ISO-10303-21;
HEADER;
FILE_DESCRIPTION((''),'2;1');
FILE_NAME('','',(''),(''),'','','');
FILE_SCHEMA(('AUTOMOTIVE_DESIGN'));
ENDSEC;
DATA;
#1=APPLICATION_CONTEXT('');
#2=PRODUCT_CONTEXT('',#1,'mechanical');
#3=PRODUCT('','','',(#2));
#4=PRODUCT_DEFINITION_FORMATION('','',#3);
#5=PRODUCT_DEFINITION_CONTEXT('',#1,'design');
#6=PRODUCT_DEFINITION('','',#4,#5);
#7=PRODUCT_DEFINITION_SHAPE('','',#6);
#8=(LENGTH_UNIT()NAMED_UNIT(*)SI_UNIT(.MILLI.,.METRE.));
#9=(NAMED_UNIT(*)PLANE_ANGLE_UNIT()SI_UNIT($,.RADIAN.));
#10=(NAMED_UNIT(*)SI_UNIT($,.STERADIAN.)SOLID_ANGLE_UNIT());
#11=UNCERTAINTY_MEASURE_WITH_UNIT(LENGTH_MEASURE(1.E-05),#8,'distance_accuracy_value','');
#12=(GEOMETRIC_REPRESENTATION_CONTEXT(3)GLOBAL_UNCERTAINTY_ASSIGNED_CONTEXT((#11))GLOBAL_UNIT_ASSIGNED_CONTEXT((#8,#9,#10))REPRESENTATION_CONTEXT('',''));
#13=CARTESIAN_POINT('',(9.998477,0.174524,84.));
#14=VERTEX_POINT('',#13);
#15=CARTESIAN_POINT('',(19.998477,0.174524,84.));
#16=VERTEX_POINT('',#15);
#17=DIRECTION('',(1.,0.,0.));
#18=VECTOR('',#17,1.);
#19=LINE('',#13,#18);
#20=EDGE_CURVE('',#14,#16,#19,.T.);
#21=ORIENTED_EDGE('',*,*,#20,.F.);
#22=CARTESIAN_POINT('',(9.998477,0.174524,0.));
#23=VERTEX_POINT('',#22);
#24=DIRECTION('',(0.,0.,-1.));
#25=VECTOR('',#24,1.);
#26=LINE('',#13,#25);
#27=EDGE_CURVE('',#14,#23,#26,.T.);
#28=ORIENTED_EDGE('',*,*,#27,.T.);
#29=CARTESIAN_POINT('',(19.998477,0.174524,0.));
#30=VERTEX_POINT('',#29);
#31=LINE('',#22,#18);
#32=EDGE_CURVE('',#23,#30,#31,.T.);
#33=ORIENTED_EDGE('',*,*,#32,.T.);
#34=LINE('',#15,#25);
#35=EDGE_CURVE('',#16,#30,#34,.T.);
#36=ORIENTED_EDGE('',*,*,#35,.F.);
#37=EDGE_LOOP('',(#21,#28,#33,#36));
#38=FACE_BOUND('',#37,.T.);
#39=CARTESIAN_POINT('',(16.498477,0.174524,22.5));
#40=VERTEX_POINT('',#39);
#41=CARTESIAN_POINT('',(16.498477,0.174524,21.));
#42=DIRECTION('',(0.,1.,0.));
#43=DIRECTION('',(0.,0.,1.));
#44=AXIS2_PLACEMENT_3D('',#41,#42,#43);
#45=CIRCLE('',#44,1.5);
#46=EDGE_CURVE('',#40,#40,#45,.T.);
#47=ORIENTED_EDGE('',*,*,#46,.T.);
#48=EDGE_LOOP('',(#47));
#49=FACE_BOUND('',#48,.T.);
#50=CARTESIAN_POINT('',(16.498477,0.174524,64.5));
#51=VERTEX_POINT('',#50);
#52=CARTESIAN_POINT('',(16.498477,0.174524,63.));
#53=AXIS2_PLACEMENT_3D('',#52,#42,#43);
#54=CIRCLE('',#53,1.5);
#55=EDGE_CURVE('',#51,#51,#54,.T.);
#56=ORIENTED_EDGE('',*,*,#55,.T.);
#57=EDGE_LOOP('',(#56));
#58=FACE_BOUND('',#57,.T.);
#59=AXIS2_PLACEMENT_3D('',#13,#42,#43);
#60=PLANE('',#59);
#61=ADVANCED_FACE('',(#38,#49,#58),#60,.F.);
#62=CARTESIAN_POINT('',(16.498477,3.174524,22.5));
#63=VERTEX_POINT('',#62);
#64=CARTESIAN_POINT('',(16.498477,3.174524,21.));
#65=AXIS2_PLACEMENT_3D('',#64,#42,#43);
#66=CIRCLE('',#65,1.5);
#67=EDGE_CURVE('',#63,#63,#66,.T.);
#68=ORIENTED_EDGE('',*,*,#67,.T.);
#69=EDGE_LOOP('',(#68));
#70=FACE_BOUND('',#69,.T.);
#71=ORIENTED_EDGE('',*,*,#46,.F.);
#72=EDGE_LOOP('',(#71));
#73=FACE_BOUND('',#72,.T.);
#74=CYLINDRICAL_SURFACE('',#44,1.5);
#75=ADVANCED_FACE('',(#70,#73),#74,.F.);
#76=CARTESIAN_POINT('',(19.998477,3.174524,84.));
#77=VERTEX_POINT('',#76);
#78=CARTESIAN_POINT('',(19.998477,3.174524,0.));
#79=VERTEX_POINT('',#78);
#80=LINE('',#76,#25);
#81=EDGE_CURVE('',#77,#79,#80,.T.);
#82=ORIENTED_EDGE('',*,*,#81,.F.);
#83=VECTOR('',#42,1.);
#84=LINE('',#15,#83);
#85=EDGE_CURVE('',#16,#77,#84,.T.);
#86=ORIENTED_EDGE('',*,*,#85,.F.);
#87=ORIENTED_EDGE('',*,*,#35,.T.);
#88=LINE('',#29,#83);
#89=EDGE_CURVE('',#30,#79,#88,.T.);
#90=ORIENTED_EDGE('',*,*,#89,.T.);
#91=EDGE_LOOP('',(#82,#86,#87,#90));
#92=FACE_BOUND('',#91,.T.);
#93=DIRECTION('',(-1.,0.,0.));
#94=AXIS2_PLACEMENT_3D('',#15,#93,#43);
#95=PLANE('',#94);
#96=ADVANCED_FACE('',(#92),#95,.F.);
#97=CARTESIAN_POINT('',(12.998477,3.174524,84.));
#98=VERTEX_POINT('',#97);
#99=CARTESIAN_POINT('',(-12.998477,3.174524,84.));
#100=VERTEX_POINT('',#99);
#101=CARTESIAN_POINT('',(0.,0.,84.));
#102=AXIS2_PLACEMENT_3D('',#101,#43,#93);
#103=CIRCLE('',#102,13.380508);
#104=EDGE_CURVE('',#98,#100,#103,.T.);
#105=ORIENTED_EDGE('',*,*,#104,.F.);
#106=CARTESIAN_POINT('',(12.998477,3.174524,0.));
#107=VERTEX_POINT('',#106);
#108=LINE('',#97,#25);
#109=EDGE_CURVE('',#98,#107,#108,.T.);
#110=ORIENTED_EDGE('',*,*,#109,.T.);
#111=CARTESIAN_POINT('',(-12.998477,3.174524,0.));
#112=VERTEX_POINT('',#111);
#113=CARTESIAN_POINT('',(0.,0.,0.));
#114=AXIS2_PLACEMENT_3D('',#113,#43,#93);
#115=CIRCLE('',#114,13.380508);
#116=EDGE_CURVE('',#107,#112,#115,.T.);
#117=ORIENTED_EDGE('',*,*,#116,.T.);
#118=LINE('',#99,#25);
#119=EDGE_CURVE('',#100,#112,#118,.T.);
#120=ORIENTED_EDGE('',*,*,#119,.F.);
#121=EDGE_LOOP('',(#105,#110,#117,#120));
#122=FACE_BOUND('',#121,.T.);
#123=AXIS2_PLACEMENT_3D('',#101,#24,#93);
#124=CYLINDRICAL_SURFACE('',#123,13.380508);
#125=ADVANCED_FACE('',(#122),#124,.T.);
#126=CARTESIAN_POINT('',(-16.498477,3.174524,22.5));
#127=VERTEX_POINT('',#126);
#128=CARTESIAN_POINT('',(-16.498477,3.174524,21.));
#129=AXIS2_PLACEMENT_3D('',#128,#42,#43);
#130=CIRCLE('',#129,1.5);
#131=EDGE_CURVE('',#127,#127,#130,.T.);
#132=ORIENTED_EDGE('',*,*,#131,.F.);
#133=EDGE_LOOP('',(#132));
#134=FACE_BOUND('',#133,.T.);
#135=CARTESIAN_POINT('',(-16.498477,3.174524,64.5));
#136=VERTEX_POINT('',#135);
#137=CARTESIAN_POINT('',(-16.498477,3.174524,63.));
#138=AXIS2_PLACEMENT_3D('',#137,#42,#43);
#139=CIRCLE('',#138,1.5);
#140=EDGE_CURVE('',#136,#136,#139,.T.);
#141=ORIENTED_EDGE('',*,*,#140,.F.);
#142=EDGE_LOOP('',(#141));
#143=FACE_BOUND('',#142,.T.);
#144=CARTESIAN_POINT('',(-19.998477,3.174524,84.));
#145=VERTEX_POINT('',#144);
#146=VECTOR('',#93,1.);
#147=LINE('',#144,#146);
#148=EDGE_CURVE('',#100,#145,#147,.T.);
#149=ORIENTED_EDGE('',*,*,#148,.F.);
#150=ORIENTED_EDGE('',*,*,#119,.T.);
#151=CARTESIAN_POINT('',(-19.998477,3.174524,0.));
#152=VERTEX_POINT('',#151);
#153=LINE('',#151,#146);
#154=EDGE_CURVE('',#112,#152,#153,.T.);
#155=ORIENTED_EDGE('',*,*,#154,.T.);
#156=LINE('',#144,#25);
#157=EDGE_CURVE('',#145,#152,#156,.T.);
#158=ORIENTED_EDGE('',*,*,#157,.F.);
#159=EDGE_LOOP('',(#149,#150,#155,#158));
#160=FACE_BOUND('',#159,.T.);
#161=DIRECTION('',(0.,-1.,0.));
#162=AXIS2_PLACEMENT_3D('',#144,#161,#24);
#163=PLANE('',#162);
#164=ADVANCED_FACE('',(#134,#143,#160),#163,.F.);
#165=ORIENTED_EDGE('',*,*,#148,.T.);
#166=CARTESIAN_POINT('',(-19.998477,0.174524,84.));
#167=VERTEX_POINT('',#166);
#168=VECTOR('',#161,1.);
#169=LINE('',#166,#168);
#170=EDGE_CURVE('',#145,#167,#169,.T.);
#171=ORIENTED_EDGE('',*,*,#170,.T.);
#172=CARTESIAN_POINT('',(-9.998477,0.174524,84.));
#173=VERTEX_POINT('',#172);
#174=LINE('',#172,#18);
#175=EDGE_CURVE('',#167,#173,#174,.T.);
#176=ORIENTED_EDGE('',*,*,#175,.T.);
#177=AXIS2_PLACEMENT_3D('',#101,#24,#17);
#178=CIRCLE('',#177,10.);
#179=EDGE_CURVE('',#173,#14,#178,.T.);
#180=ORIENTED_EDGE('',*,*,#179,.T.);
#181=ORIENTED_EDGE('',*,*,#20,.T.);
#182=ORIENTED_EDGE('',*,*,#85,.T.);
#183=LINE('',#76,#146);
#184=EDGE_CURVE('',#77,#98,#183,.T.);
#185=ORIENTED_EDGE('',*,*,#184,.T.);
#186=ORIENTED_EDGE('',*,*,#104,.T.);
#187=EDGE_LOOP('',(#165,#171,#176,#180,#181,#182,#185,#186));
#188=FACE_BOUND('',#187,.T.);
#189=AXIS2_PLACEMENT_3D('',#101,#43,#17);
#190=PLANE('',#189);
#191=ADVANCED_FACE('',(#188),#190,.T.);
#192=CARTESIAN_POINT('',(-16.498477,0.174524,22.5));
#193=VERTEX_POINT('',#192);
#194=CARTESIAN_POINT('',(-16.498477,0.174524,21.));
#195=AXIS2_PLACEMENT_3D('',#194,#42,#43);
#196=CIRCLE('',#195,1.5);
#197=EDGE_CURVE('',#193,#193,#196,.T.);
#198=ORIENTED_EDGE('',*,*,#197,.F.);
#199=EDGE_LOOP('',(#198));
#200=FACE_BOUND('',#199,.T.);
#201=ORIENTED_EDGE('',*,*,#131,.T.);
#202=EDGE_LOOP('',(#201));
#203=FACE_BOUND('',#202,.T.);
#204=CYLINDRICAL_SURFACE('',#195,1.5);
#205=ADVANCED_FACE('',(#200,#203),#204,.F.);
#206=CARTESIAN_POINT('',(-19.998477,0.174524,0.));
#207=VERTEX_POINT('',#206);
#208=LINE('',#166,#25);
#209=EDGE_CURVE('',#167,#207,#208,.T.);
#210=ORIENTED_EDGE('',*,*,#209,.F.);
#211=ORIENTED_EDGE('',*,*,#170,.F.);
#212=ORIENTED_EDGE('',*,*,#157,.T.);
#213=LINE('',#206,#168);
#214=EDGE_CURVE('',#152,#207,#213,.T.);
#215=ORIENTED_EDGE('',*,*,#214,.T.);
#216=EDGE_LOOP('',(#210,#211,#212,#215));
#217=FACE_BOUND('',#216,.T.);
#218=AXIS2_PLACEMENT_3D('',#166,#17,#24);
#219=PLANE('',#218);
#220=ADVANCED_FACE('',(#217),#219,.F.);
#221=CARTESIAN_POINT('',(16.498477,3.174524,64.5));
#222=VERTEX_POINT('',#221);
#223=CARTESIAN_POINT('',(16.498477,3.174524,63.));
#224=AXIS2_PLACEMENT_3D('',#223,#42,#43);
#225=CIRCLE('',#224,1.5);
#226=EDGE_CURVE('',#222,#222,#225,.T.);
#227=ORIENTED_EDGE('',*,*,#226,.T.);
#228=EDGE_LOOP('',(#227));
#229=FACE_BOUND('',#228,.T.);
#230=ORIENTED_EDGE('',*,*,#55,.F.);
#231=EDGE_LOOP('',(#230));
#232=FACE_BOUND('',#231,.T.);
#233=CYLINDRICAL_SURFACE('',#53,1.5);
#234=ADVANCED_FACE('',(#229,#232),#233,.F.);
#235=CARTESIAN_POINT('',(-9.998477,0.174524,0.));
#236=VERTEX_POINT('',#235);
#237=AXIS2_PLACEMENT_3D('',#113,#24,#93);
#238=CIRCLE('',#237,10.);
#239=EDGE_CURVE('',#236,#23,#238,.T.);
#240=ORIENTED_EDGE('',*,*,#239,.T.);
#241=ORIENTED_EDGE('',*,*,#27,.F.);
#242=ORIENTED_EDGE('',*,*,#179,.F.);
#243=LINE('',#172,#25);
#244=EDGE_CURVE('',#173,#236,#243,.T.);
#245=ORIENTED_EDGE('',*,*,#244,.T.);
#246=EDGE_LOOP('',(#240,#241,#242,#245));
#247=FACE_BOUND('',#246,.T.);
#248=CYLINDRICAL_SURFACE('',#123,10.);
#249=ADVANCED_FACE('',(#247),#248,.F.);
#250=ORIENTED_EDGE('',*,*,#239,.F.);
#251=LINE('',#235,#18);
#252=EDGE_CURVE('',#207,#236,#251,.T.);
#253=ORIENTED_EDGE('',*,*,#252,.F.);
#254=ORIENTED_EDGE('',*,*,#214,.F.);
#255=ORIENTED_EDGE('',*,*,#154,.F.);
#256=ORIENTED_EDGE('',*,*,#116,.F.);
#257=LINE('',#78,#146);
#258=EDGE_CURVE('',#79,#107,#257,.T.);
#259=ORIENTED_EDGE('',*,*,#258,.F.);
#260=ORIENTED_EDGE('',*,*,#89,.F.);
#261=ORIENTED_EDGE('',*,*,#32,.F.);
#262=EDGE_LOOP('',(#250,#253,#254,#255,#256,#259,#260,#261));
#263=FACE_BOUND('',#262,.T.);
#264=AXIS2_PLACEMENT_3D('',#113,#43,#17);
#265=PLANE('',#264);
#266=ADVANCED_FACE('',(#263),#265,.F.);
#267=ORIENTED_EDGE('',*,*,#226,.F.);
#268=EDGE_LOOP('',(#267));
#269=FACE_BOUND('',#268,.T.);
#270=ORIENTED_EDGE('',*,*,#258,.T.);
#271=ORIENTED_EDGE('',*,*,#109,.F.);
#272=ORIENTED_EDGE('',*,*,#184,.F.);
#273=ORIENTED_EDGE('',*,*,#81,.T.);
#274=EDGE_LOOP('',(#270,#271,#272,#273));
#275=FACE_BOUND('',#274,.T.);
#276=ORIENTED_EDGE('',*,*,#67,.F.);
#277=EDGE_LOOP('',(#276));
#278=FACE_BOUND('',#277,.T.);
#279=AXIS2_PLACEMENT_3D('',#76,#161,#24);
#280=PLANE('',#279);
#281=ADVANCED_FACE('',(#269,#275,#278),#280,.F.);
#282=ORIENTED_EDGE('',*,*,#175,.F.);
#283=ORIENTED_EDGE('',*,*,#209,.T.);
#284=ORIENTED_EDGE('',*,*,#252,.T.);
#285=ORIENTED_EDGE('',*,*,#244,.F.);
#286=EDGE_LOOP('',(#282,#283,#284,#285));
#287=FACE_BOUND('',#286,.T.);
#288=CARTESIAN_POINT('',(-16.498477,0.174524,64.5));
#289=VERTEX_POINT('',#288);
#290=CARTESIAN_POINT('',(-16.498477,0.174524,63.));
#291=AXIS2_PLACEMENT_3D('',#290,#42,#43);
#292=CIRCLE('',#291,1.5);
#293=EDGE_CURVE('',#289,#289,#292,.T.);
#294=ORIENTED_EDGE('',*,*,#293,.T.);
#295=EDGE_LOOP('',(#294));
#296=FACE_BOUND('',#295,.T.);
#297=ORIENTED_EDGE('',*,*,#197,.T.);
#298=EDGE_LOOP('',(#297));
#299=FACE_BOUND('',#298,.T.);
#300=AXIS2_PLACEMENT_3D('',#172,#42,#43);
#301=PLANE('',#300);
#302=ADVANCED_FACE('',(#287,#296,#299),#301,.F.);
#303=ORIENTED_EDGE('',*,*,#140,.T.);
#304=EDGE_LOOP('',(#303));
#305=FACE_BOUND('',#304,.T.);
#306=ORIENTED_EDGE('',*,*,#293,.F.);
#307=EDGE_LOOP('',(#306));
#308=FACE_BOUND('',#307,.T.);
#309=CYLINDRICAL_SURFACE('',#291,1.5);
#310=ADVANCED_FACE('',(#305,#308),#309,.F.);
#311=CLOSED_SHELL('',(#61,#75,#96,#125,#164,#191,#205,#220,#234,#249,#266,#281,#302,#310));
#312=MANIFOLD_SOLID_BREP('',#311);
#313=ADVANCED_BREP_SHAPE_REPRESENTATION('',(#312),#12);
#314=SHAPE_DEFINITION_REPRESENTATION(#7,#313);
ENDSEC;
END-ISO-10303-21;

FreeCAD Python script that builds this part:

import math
import FreeCAD as App
import Part
import Sketcher
from FreeCAD import Vector

doc = App.newDocument("Part")
body = doc.addObject("PartDesign::Body", "Body")

# Sketch on XY plane
sketch1 = body.newObject("Sketcher::SketchObject", "Sketch")
sketch1.AttachmentSupport = (doc.getObject("XY_Plane"), [""])
sketch1.MapMode = "FlatFace"
sketch1.addGeometry([
    Part.LineSegment(Vector(-19.998477, 0.174524, 0), Vector(-9.998477, 0.174524, 0)),  # 0
    Part.ArcOfCircle(Part.Circle(Vector(0, 0, 0), Vector(0, 0, 1), 10), math.radians(90), math.radians(179)),  # 1
    Part.ArcOfCircle(Part.Circle(Vector(0, 0, 0), Vector(0, 0, 1), 10), math.radians(1), math.radians(90)),  # 2
    Part.LineSegment(Vector(9.998477, 0.174524, 0), Vector(19.998477, 0.174524, 0)),  # 3
    Part.LineSegment(Vector(19.998477, 0.174524, 0), Vector(19.998477, 3.174524, 0)),  # 4
    Part.LineSegment(Vector(19.998477, 3.174524, 0), Vector(12.998477, 3.174524, 0)),  # 5
    Part.ArcOfCircle(Part.Circle(Vector(0, 0, 0), Vector(0, 0, 1), 13.380508), math.radians(13.724283), math.radians(166.275717)),  # 6
    Part.LineSegment(Vector(-12.998477, 3.174524, 0), Vector(-19.998477, 3.174524, 0)),  # 7
    Part.LineSegment(Vector(-19.998477, 3.174524, 0), Vector(-19.998477, 0.174524, 0)),  # 8
], False)
sketch1.addConstraint([
    Sketcher.Constraint("Coincident", 0, 2, 1, 2),
    Sketcher.Constraint("Tangent", 1, 1, 2, 2),
    Sketcher.Constraint("Coincident", 2, 1, 3, 1),
    Sketcher.Constraint("Coincident", 3, 2, 4, 1),
    Sketcher.Constraint("Coincident", 4, 2, 5, 1),
    Sketcher.Constraint("Coincident", 5, 2, 6, 1),
    Sketcher.Constraint("Coincident", 6, 2, 7, 1),
    Sketcher.Constraint("Coincident", 7, 2, 8, 1),
    Sketcher.Constraint("Coincident", 8, 2, 0, 1),
    Sketcher.Constraint("Horizontal", 0),
    Sketcher.Constraint("Horizontal", 3),
    Sketcher.Constraint("Vertical", 4),
    Sketcher.Constraint("Horizontal", 5),
    Sketcher.Constraint("Horizontal", 7),
    Sketcher.Constraint("Vertical", 8),
    Sketcher.Constraint("Coincident", 1, 3, -1, 1),
    Sketcher.Constraint("Coincident", 6, 3, -1, 1),
    Sketcher.Constraint("Equal", 1, 2),
    Sketcher.Constraint("Symmetric", 4, 2, 7, 2, -2),
    Sketcher.Constraint("PointOnObject", 1, 1, -2),
    Sketcher.Constraint("Horizontal", 0, 2, 2, 1),
    Sketcher.Constraint("Radius", 1, 10.0),
    Sketcher.Constraint("DistanceX", 0, 1, 0, 2, 10.0),
    Sketcher.Constraint("DistanceX", 5, 2, 5, 1, 7.0),
    Sketcher.Constraint("DistanceY", 4, 1, 4, 2, 3.0),
    Sketcher.Constraint("Radius", 6, 13.380508),
])
pad1 = body.newObject("PartDesign::Pad", "Pad")
pad1.Profile = sketch1
pad1.Length = 84

# Sketch on XZ plane
sketch2 = body.newObject("Sketcher::SketchObject", "Sketch001")
sketch2.AttachmentSupport = (doc.getObject("XZ_Plane"), [""])
sketch2.MapMode = "FlatFace"
sketch2.AttachmentOffset = App.Placement(Vector(0, 0, -3.174524), App.Rotation())
sketch2.addGeometry([
    Part.Circle(Vector(-16.498477, 21, 0), Vector(0, 0, 1), 1.5),
    Part.Circle(Vector(-16.498477, 63, 0), Vector(0, 0, 1), 1.5),
    Part.Circle(Vector(16.498477, 21, 0), Vector(0, 0, 1), 1.5),
    Part.Circle(Vector(16.498477, 63, 0), Vector(0, 0, 1), 1.5),
], False)
sketch2.addConstraint([
    Sketcher.Constraint("Equal", 0, 1),
    Sketcher.Constraint("Equal", 1, 2),
    Sketcher.Constraint("Equal", 2, 3),
    Sketcher.Constraint("Symmetric", 0, 3, 2, 3, -2),
    Sketcher.Constraint("Symmetric", 1, 3, 3, 3, -2),
    Sketcher.Constraint("Vertical", 0, 3, 1, 3),
    Sketcher.Constraint("Diameter", 0, 3.0),
    Sketcher.Constraint("DistanceY", -1, 1, 0, 3, 21.0),
    Sketcher.Constraint("DistanceY", -1, 1, 1, 3, 63.0),
    Sketcher.Constraint("DistanceX", 0, 3, -1, 1, 16.498477),
])
pocket1 = body.newObject("PartDesign::Pocket", "Pocket")
pocket1.Profile = sketch2
pocket1.Type = "ThroughAll"
pocket1.Reversed = True

doc.recompute()
